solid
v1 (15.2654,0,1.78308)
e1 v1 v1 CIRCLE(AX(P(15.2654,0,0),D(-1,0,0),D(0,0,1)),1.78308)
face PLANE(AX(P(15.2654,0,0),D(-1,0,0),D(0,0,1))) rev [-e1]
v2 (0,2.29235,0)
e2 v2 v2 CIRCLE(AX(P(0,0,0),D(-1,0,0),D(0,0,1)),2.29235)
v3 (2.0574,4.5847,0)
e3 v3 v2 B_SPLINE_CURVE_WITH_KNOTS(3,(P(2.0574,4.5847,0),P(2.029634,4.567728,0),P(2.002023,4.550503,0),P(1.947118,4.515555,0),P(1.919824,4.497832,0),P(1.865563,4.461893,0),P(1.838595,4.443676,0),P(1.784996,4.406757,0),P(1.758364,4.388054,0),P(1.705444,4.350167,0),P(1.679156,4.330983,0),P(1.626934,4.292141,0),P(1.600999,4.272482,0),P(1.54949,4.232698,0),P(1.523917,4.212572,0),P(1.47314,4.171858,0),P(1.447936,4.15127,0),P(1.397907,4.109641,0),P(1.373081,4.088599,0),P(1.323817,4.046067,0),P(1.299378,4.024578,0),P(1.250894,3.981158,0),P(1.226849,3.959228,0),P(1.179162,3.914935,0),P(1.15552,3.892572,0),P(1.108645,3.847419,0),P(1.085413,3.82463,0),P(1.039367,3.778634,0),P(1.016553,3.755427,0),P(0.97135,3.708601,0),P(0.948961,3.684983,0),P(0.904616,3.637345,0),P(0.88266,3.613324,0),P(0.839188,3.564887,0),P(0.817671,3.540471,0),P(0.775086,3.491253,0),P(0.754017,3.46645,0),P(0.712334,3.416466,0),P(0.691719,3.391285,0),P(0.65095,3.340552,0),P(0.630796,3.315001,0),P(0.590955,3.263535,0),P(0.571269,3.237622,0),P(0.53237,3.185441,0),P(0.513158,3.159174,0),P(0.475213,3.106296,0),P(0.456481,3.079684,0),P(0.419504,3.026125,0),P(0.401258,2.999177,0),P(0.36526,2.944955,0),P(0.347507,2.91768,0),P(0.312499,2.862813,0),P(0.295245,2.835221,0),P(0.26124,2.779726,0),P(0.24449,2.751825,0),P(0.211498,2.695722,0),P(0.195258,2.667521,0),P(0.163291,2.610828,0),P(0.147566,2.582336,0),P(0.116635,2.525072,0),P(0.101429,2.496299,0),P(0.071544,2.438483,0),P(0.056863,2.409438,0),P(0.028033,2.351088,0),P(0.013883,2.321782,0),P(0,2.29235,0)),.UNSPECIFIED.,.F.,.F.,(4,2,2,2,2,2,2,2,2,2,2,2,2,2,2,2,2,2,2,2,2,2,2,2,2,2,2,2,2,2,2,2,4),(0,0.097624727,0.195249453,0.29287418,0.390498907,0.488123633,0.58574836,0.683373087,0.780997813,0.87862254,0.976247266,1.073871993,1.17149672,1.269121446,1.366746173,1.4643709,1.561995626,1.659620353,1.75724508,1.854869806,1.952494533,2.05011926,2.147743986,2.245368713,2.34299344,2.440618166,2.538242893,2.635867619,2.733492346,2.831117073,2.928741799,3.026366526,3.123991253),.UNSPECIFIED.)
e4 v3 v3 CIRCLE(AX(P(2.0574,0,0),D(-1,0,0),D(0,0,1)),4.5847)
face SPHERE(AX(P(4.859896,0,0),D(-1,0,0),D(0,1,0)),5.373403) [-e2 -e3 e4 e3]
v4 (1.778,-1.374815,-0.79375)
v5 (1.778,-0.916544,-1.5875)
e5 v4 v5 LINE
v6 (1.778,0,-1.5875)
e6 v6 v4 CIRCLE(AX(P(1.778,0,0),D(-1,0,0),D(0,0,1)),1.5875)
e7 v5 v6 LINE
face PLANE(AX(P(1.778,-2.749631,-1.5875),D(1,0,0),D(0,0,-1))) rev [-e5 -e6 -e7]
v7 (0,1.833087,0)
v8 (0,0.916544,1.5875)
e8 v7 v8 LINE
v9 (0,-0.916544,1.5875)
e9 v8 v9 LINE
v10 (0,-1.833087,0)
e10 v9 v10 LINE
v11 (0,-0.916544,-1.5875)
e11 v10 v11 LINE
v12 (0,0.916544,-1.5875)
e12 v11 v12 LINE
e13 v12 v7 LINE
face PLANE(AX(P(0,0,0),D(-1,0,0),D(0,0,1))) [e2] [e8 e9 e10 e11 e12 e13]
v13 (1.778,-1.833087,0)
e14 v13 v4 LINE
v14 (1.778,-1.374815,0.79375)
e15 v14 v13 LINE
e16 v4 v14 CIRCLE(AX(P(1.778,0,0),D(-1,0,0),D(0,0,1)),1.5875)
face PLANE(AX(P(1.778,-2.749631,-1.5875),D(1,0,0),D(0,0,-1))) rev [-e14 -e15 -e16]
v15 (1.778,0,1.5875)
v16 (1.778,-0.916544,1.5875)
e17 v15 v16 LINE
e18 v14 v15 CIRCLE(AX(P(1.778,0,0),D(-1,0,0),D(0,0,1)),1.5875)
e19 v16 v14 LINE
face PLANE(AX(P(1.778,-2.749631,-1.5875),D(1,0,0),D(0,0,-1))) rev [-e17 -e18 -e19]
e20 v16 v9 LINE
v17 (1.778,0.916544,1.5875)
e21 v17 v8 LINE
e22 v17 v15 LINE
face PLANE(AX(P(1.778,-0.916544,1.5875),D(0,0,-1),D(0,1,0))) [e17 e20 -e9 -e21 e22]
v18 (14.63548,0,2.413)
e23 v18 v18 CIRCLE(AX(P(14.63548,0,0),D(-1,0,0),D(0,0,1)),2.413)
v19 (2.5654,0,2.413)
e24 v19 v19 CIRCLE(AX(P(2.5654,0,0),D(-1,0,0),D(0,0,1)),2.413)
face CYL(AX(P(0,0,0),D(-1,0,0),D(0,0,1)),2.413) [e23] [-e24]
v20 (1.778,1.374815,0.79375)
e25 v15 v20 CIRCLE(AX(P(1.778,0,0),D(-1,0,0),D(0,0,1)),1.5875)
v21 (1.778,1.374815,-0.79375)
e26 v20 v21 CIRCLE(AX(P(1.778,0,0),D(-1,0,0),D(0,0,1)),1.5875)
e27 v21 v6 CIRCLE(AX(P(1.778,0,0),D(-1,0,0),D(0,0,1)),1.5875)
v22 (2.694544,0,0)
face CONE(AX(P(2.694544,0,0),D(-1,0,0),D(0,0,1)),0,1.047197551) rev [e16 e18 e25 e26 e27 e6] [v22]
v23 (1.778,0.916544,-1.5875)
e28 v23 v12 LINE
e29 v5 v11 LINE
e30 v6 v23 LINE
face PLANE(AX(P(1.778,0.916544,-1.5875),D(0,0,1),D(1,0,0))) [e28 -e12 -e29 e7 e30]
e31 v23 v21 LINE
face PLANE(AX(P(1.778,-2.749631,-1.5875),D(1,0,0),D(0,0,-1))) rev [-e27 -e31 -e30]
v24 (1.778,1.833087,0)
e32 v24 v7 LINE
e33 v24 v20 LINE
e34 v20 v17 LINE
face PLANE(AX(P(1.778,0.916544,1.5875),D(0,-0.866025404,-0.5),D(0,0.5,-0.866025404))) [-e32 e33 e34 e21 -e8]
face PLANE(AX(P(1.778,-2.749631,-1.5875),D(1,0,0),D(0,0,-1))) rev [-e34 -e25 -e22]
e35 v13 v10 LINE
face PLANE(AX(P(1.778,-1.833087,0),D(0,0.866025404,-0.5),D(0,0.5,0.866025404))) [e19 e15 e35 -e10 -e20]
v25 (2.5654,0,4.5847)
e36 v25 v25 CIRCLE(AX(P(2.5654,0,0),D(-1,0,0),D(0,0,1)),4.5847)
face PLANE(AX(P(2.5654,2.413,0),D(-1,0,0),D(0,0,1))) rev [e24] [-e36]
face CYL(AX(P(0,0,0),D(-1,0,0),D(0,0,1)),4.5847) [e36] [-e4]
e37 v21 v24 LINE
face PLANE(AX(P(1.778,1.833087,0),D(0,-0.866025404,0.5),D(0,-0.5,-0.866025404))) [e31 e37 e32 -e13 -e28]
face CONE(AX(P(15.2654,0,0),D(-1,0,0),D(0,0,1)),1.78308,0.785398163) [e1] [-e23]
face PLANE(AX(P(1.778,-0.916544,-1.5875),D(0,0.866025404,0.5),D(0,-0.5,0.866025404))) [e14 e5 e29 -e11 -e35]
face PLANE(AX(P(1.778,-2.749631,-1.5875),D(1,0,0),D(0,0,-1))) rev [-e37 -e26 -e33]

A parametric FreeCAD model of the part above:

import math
import FreeCAD as App
import Part
import Sketcher
Q = App.Units.Quantity

doc = App.newDocument("Part")
params = doc.addObject("Spreadsheet::Sheet", "Params")
for row, (alias, value) in enumerate([
    ("sketch1_width", "0.02 in"),
    ("sketch1_width2", "0.601 in"),
    ("revolution_angle", "360 deg"),
    ("sketch2_width", "0.07 in"),
    ("sketch2_height", "0.0625 in"),
    ("groove_angle", "360 deg"),
    ("pocket1_length", "0.07 in"),
], start=1):
    params.set(f"A{row}", alias)
    params.set(f"B{row}", "=" + value)
    params.setAlias(f"B{row}", alias)

body = doc.addObject("PartDesign::Body", "Body")

# Sketch on XY plane
sketch1 = body.newObject("Sketcher::SketchObject", "Sketch")
sketch1.AttachmentSupport = (doc.getObject("XY_Plane"), [""])
sketch1.MapMode = "FlatFace"
sketch1.addGeometry(Part.LineSegment(App.Vector(15.2654, 0, 0), App.Vector(15.2654, 1.78308, 0)), False)
sketch1.addGeometry(Part.LineSegment(App.Vector(15.2654, 1.78308, 0), App.Vector(14.63548, 2.413, 0)), False)
sketch1.addGeometry(Part.LineSegment(App.Vector(14.63548, 2.413, 0), App.Vector(2.5654, 2.413, 0)), False)
sketch1.addGeometry(Part.LineSegment(App.Vector(2.5654, 2.413, 0), App.Vector(2.5654, 4.5847, 0)), False)
sketch1.addGeometry(Part.LineSegment(App.Vector(2.5654, 4.5847, 0), App.Vector(2.0574, 4.5847, 0)), False)
sketch1.addGeometry(Part.ArcOfCircle(Part.Circle(App.Vector(4.859896, 0, 0), App.Vector(0, 0, 1), 5.373403), math.radians(121.436253), math.radians(154.747355)), False)
sketch1.addGeometry(Part.LineSegment(App.Vector(0, 2.29235, 0), App.Vector(0, 0, 0)), False)
sketch1.addGeometry(Part.LineSegment(App.Vector(0, 0, 0), App.Vector(15.2654, 0, 0)), False)
sketch1.addConstraint(Sketcher.Constraint("Coincident", 0, 2, 1, 1))
sketch1.addConstraint(Sketcher.Constraint("Coincident", 1, 2, 2, 1))
sketch1.addConstraint(Sketcher.Constraint("Coincident", 2, 2, 3, 1))
sketch1.addConstraint(Sketcher.Constraint("Coincident", 3, 2, 4, 1))
sketch1.addConstraint(Sketcher.Constraint("Coincident", 4, 2, 5, 1))
sketch1.addConstraint(Sketcher.Constraint("Coincident", 5, 2, 6, 1))
sketch1.addConstraint(Sketcher.Constraint("Coincident", 6, 2, 7, 1))
sketch1.addConstraint(Sketcher.Constraint("Coincident", 7, 2, 0, 1))
sketch1.addConstraint(Sketcher.Constraint("Vertical", 0))
sketch1.addConstraint(Sketcher.Constraint("Horizontal", 2))
sketch1.addConstraint(Sketcher.Constraint("Vertical", 3))
sketch1.addConstraint(Sketcher.Constraint("Horizontal", 4))
sketch1.addConstraint(Sketcher.Constraint("Vertical", 6))
sketch1.addConstraint(Sketcher.Constraint("Horizontal", 7))
sketch1.addConstraint(Sketcher.Constraint("Coincident", 6, 2, -1, 1))
sketch1.addConstraint(Sketcher.Constraint("PointOnObject", 5, 3, -1))
sketch1.addConstraint(Sketcher.Constraint("Angle", 1, Q("135 deg")))
sketch1.addConstraint(Sketcher.Constraint("DistanceX", 4, 2, 4, 1, Q("0.02 in")))
sketch1.addConstraint(Sketcher.Constraint("DistanceX", 2, 2, 0, 2, Q("0.5 in")))
sketch1.addConstraint(Sketcher.Constraint("DistanceX", 7, 1, 7, 2, Q("0.601 in")))
sketch1.addConstraint(Sketcher.Constraint("DistanceX", 2, 2, 2, 1, Q("0.4752 in")))
sketch1.addConstraint(Sketcher.Constraint("DistanceY", 0, 1, 0, 2, Q("0.0702 in")))
sketch1.addConstraint(Sketcher.Constraint("DistanceY", 3, 1, 3, 2, Q("0.0855 in")))
sketch1.addConstraint(Sketcher.Constraint("Radius", 5, Q("5.373403 mm")))
sketch1.setExpression("Constraints[17]", "Params.sketch1_width")
sketch1.setExpression("Constraints[19]", "Params.sketch1_width2")
revolution = body.newObject("PartDesign::Revolution", "Revolution")
revolution.Profile = sketch1
revolution.ReferenceAxis = (sketch1, ["H_Axis"])
revolution.setExpression("Angle", "Params.revolution_angle")

# Sketch on XY plane
sketch2 = body.newObject("Sketcher::SketchObject", "Sketch001")
sketch2.AttachmentSupport = (doc.getObject("XY_Plane"), [""])
sketch2.MapMode = "FlatFace"
sketch2.addGeometry(Part.LineSegment(App.Vector(1.778, 1.5875, 0), App.Vector(0, 1.5875, 0)), False)
sketch2.addGeometry(Part.LineSegment(App.Vector(0, 1.5875, 0), App.Vector(0, 0, 0)), False)
sketch2.addGeometry(Part.LineSegment(App.Vector(0, 0, 0), App.Vector(2.694544, 0, 0)), False)
sketch2.addGeometry(Part.LineSegment(App.Vector(2.694544, 0, 0), App.Vector(1.778, 1.5875, 0)), False)
sketch2.addConstraint(Sketcher.Constraint("Coincident", 0, 2, 1, 1))
sketch2.addConstraint(Sketcher.Constraint("Coincident", 1, 2, 2, 1))
sketch2.addConstraint(Sketcher.Constraint("Coincident", 2, 2, 3, 1))
sketch2.addConstraint(Sketcher.Constraint("Coincident", 3, 2, 0, 1))
sketch2.addConstraint(Sketcher.Constraint("Horizontal", 0))
sketch2.addConstraint(Sketcher.Constraint("Vertical", 1))
sketch2.addConstraint(Sketcher.Constraint("Horizontal", 2))
sketch2.addConstraint(Sketcher.Constraint("Coincident", 1, 2, -1, 1))
sketch2.addConstraint(Sketcher.Constraint("Angle", 3, Q("120 deg")))
sketch2.addConstraint(Sketcher.Constraint("DistanceX", 0, 2, 0, 1, Q("0.07 in")))
sketch2.addConstraint(Sketcher.Constraint("DistanceY", 1, 2, 1, 1, Q("0.0625 in")))
sketch2.setExpression("Constraints[9]", "Params.sketch2_width")
sketch2.setExpression("Constraints[10]", "Params.sketch2_height")
groove = body.newObject("PartDesign::Groove", "Groove")
groove.Profile = sketch2
groove.ReferenceAxis = (sketch2, ["H_Axis"])
groove.setExpression("Angle", "Params.groove_angle")

# Sketch on YZ plane
sketch3 = body.newObject("Sketcher::SketchObject", "Sketch002")
sketch3.AttachmentSupport = (doc.getObject("YZ_Plane"), [""])
sketch3.MapMode = "FlatFace"
sketch3.addGeometry(Part.LineSegment(App.Vector(0.916544, 1.5875, 0), App.Vector(-0.916544, 1.5875, 0)), False)
sketch3.addGeometry(Part.LineSegment(App.Vector(-0.916544, 1.5875, 0), App.Vector(-1.833087, 0, 0)), False)
sketch3.addGeometry(Part.LineSegment(App.Vector(-1.833087, 0, 0), App.Vector(-0.916544, -1.5875, 0)), False)
sketch3.addGeometry(Part.LineSegment(App.Vector(-0.916544, -1.5875, 0), App.Vector(0.916544, -1.5875, 0)), False)
sketch3.addGeometry(Part.LineSegment(App.Vector(0.916544, -1.5875, 0), App.Vector(1.833087, 0, 0)), False)
sketch3.addGeometry(Part.LineSegment(App.Vector(1.833087, 0, 0), App.Vector(0.916544, 1.5875, 0)), False)
sketch3.addConstraint(Sketcher.Constraint("Coincident", 0, 2, 1, 1))
sketch3.addConstraint(Sketcher.Constraint("Coincident", 1, 2, 2, 1))
sketch3.addConstraint(Sketcher.Constraint("Coincident", 2, 2, 3, 1))
sketch3.addConstraint(Sketcher.Constraint("Coincident", 3, 2, 4, 1))
sketch3.addConstraint(Sketcher.Constraint("Coincident", 4, 2, 5, 1))
sketch3.addConstraint(Sketcher.Constraint("Coincident", 5, 2, 0, 1))
sketch3.addConstraint(Sketcher.Constraint("Horizontal", 0))
sketch3.addConstraint(Sketcher.Constraint("Horizontal", 3))
sketch3.addConstraint(Sketcher.Constraint("Symmetric", 0, 2, 3, 2, -1, 1))
sketch3.addConstraint(Sketcher.Constraint("Symmetric", 1, 2, 4, 2, -1, 1))
sketch3.addConstraint(Sketcher.Constraint("PointOnObject", 1, 2, -1))
sketch3.addConstraint(Sketcher.Constraint("Parallel", 2, 5))
sketch3.addConstraint(Sketcher.Constraint("Vertical", 0, 2, 2, 2))
sketch3.addConstraint(Sketcher.Constraint("Angle", 1, Q("-120 deg")))
sketch3.addConstraint(Sketcher.Constraint("DistanceY", -1, 1, 0, 2, Q("0.0625 in")))
sketch3.addConstraint(Sketcher.Constraint("DistanceX", 0, 2, 0, 1, Q("1.833087 mm")))
pocket1 = body.newObject("PartDesign::Pocket", "Pocket")
pocket1.Profile = sketch3
pocket1.setExpression("Length", "Params.pocket1_length")
pocket1.Reversed = True

doc.recompute()
